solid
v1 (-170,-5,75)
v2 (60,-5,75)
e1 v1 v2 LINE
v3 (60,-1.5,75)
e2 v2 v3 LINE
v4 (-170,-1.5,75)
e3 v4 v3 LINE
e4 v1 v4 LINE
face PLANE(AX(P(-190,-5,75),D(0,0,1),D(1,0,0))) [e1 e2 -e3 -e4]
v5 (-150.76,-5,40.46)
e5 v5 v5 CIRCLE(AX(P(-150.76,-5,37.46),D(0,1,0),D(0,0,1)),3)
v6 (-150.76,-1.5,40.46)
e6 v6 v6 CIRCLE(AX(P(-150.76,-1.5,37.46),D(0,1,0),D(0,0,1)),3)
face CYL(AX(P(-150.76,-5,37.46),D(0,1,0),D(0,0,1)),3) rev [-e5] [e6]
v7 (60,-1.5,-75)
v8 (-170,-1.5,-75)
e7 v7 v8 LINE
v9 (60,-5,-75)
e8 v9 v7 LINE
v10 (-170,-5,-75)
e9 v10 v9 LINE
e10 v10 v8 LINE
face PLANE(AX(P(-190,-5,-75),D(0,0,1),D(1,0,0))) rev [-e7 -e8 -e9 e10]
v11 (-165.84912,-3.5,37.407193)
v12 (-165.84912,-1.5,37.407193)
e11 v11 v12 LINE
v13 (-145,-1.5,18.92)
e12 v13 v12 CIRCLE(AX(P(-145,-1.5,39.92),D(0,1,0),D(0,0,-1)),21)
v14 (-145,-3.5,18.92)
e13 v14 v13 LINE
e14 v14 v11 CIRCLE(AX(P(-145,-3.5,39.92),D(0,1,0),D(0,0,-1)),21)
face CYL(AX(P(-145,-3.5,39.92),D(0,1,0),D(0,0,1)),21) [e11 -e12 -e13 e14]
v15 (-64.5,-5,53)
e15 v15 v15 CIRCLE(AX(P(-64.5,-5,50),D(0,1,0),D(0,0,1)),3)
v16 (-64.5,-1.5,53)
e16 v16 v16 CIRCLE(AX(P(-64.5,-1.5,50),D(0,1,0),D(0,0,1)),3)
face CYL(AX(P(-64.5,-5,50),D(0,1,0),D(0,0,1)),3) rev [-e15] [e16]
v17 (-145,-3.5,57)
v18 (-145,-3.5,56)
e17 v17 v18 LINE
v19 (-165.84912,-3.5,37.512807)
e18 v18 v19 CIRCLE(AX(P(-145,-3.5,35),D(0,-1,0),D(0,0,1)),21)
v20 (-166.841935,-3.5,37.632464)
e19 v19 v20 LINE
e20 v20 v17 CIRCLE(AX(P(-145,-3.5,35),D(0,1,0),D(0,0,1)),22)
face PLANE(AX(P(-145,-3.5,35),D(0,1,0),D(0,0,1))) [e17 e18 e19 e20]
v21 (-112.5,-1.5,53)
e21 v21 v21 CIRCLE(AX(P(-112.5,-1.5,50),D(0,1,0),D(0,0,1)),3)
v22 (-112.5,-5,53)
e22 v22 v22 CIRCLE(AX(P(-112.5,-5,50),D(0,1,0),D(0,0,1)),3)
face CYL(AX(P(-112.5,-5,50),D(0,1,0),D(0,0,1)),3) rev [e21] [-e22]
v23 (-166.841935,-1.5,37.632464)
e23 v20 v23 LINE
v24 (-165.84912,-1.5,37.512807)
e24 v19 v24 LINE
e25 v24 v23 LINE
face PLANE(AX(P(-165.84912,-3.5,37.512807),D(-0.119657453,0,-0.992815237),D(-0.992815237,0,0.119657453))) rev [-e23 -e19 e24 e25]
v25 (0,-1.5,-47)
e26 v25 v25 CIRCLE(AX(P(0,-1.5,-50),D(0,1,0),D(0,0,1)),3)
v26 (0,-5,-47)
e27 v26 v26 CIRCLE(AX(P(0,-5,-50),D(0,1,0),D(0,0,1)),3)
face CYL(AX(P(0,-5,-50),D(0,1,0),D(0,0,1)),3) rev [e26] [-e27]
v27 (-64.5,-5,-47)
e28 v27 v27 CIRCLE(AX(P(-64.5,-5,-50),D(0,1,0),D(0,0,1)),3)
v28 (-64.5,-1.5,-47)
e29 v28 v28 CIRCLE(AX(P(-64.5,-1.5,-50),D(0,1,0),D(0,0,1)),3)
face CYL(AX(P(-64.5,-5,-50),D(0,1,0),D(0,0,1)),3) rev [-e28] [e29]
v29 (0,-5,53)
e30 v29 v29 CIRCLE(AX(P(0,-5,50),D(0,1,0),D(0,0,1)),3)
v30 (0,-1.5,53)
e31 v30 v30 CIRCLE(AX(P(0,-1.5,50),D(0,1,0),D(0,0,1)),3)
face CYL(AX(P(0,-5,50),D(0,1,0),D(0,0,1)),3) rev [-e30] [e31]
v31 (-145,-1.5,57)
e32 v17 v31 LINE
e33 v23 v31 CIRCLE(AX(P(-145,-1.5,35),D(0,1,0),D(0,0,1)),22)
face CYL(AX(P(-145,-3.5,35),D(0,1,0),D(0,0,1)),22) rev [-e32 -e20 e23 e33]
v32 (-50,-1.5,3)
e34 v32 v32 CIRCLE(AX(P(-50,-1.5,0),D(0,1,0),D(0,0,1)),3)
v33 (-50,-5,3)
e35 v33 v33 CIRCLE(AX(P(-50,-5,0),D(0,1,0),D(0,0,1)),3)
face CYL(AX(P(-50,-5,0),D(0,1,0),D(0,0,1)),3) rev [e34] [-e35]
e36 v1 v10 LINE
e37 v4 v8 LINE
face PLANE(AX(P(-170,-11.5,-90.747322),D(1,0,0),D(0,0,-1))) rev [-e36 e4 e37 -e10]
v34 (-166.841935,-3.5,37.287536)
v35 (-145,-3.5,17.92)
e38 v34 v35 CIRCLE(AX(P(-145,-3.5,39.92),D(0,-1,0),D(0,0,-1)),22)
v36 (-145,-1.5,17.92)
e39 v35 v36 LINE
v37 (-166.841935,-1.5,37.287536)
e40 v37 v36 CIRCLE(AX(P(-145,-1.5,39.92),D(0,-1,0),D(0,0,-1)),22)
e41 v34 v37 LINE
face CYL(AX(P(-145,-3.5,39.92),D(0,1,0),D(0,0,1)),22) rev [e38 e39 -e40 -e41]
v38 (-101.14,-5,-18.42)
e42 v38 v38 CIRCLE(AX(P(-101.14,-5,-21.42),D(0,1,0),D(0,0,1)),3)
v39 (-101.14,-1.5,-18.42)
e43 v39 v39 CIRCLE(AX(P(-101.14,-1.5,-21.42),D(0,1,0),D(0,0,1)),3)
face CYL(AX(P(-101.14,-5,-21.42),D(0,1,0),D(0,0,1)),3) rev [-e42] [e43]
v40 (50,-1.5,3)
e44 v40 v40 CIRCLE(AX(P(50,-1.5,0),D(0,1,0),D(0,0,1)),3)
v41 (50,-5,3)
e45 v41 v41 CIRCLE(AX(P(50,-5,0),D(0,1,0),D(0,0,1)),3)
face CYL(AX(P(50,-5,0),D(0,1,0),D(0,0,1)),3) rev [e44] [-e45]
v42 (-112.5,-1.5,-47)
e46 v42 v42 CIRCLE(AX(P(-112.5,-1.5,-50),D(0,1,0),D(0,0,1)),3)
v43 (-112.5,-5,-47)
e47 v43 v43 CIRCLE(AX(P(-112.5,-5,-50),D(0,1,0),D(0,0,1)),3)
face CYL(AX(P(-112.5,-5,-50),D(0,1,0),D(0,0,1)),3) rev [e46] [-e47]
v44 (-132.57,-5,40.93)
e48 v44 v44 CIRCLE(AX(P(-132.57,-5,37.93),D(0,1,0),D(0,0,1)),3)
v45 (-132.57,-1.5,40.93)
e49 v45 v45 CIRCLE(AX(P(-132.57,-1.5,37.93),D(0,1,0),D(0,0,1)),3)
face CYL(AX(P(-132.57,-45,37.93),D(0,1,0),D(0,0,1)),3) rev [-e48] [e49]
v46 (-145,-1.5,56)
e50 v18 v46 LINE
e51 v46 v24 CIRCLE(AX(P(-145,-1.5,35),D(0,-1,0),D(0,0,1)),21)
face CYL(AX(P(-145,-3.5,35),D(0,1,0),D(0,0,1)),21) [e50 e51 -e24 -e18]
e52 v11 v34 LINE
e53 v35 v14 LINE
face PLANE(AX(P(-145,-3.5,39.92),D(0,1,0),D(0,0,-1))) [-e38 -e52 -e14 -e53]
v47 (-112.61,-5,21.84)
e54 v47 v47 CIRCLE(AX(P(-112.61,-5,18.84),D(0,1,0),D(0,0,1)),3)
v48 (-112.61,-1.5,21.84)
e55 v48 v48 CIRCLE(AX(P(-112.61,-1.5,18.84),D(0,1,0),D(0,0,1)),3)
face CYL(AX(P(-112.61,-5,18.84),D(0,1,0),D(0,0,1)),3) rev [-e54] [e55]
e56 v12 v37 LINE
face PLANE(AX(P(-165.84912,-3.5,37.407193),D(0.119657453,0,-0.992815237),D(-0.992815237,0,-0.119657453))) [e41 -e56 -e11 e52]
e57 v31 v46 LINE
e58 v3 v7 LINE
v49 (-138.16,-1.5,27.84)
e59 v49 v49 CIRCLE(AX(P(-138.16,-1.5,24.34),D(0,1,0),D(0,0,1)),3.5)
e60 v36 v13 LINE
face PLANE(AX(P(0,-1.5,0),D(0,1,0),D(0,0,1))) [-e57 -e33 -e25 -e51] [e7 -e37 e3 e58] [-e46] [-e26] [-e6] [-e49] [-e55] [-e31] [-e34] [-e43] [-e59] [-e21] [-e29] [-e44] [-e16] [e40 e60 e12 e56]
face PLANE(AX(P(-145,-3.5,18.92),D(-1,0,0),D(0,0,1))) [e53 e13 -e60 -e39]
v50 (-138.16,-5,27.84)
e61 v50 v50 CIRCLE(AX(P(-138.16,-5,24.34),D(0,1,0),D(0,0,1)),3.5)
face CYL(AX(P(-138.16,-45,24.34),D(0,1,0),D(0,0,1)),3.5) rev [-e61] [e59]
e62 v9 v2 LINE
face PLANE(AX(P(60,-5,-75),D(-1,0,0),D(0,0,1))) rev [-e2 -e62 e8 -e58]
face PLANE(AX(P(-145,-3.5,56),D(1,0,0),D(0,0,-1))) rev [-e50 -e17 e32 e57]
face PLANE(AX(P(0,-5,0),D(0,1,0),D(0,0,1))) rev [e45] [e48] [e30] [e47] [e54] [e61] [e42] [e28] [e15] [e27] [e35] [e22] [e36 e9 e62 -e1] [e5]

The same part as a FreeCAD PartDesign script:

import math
import FreeCAD as App
import Part
import Sketcher
from FreeCAD import Vector
Q = App.Units.Quantity

doc = App.newDocument("Part")
body = doc.addObject("PartDesign::Body", "Body")

# Sketch on XZ plane
sketch1 = body.newObject("Sketcher::SketchObject", "Sketch")
sketch1.AttachmentSupport = (doc.getObject("XZ_Plane"), [""])
sketch1.MapMode = "FlatFace"
sketch1.addGeometry([
    Part.LineSegment(Vector(-190, -75, 0), Vector(-190, 75, 0)),
    Part.LineSegment(Vector(-190, 75, 0), Vector(60, 75, 0)),
    Part.LineSegment(Vector(60, 75, 0), Vector(60, -75, 0)),
    Part.LineSegment(Vector(60, -75, 0), Vector(-190, -75, 0)),
], False)
sketch1.addConstraint([
    Sketcher.Constraint("Coincident", 0, 2, 1, 1),
    Sketcher.Constraint("Coincident", 1, 2, 2, 1),
    Sketcher.Constraint("Coincident", 2, 2, 3, 1),
    Sketcher.Constraint("Coincident", 3, 2, 0, 1),
    Sketcher.Constraint("Vertical", 0),
    Sketcher.Constraint("Horizontal", 1),
    Sketcher.Constraint("Vertical", 2),
    Sketcher.Constraint("Horizontal", 3),
    Sketcher.Constraint("DistanceX", 1, 1, 1, 2, Q("250 mm")),
    Sketcher.Constraint("DistanceY", 0, 1, 0, 2, Q("150 mm")),
    Sketcher.Constraint("DistanceX", 0, 2, -1, 1, Q("190 mm")),
    Sketcher.Constraint("DistanceY", -1, 1, 0, 2, Q("75 mm")),
])
pad1 = body.newObject("PartDesign::Pad", "Pad")
pad1.Profile = sketch1
pad1.Length = 5

# Sketch on XZ plane
sketch2 = body.newObject("Sketcher::SketchObject", "Sketch001")
sketch2.AttachmentSupport = (doc.getObject("XZ_Plane"), [""])
sketch2.MapMode = "FlatFace"
sketch2.addGeometry(Part.Circle(Vector(0, -50, 0), Vector(0, 0, 1), 3), False)
sketch2.addConstraint([
    Sketcher.Constraint("PointOnObject", 0, 3, -2),
    Sketcher.Constraint("Diameter", 0, Q("6 mm")),
    Sketcher.Constraint("DistanceY", 0, 3, -1, 1, Q("50 mm")),
])
pocket1 = body.newObject("PartDesign::Pocket", "Pocket")
pocket1.Profile = sketch2
pocket1.Length = 5
pocket1.Reversed = True

# Sketch on XZ plane
sketch3 = body.newObject("Sketcher::SketchObject", "Sketch002")
sketch3.AttachmentSupport = (doc.getObject("XZ_Plane"), [""])
sketch3.MapMode = "FlatFace"
sketch3.addGeometry(Part.Circle(Vector(-50, 0, 0), Vector(0, 0, 1), 3), False)
sketch3.addConstraint([
    Sketcher.Constraint("PointOnObject", 0, 3, -1),
    Sketcher.Constraint("Diameter", 0, Q("6 mm")),
    Sketcher.Constraint("DistanceX", 0, 3, -1, 1, Q("50 mm")),
])
pocket2 = body.newObject("PartDesign::Pocket", "Pocket001")
pocket2.Profile = sketch3
pocket2.Length = 5
pocket2.Reversed = True

# Sketch on XZ plane
sketch4 = body.newObject("Sketcher::SketchObject", "Sketch003")
sketch4.AttachmentSupport = (doc.getObject("XZ_Plane"), [""])
sketch4.MapMode = "FlatFace"
sketch4.addGeometry(Part.Circle(Vector(0, 50, 0), Vector(0, 0, 1), 3), False)
sketch4.addConstraint([
    Sketcher.Constraint("PointOnObject", 0, 3, -2),
    Sketcher.Constraint("Diameter", 0, Q("6 mm")),
    Sketcher.Constraint("DistanceY", -1, 1, 0, 3, Q("50 mm")),
])
pocket3 = body.newObject("PartDesign::Pocket", "Pocket002")
pocket3.Profile = sketch4
pocket3.Length = 5
pocket3.Reversed = True

# Sketch on XZ plane
sketch5 = body.newObject("Sketcher::SketchObject", "Sketch004")
sketch5.AttachmentSupport = (doc.getObject("XZ_Plane"), [""])
sketch5.MapMode = "FlatFace"
sketch5.addGeometry(Part.Circle(Vector(50, 0, 0), Vector(0, 0, 1), 3), False)
sketch5.addConstraint([
    Sketcher.Constraint("PointOnObject", 0, 3, -1),
    Sketcher.Constraint("Diameter", 0, Q("6 mm")),
    Sketcher.Constraint("DistanceX", -1, 1, 0, 3, Q("50 mm")),
])
pocket4 = body.newObject("PartDesign::Pocket", "Pocket003")
pocket4.Profile = sketch5
pocket4.Length = 5
pocket4.Reversed = True

# Sketch on XZ plane
sketch6 = body.newObject("Sketcher::SketchObject", "Sketch005")
sketch6.AttachmentSupport = (doc.getObject("XZ_Plane"), [""])
sketch6.MapMode = "FlatFace"
sketch6.addGeometry(Part.Circle(Vector(-150.8, 37.5, 0), Vector(0, 0, 1), 3), False)
sketch6.addConstraint([
    Sketcher.Constraint("Diameter", 0, Q("6 mm")),
    Sketcher.Constraint("DistanceX", 0, 3, -1, 1, Q("150.76 mm")),
    Sketcher.Constraint("DistanceY", -1, 1, 0, 3, Q("37.46 mm")),
])
pocket5 = body.newObject("PartDesign::Pocket", "Pocket004")
pocket5.Profile = sketch6
pocket5.Length = 5
pocket5.Reversed = True

# Sketch on XZ plane
sketch7 = body.newObject("Sketcher::SketchObject", "Sketch006")
sketch7.AttachmentSupport = (doc.getObject("XZ_Plane"), [""])
sketch7.MapMode = "FlatFace"
sketch7.addGeometry(Part.Circle(Vector(-132.6, 37.9, 0), Vector(0, 0, 1), 3), False)
sketch7.addConstraint([
    Sketcher.Constraint("Diameter", 0, Q("6 mm")),
    Sketcher.Constraint("DistanceX", 0, 3, -1, 1, Q("132.57 mm")),
    Sketcher.Constraint("DistanceY", -1, 1, 0, 3, Q("37.93 mm")),
])
pocket6 = body.newObject("PartDesign::Pocket", "Pocket005")
pocket6.Profile = sketch7
pocket6.Length = 45
pocket6.Reversed = True

# Sketch on XZ plane
sketch8 = body.newObject("Sketcher::SketchObject", "Sketch007")
sketch8.AttachmentSupport = (doc.getObject("XZ_Plane"), [""])
sketch8.MapMode = "FlatFace"
sketch8.addGeometry(Part.Circle(Vector(-138.2, 24.3, 0), Vector(0, 0, 1), 3.5), False)
sketch8.addConstraint([
    Sketcher.Constraint("Diameter", 0, Q("7 mm")),
    Sketcher.Constraint("DistanceX", 0, 3, -1, 1, Q("138.16 mm")),
    Sketcher.Constraint("DistanceY", -1, 1, 0, 3, Q("24.34 mm")),
])
pocket7 = body.newObject("PartDesign::Pocket", "Pocket006")
pocket7.Profile = sketch8
pocket7.Length = 45
pocket7.Reversed = True

# Sketch on XZ plane
sketch9 = body.newObject("Sketcher::SketchObject", "Sketch008")
sketch9.AttachmentSupport = (doc.getObject("XZ_Plane"), [""])
sketch9.MapMode = "FlatFace"
sketch9.addGeometry(Part.Circle(Vector(-112.5, 50, 0), Vector(0, 0, 1), 3), False)
sketch9.addConstraint([
    Sketcher.Constraint("Diameter", 0, Q("6 mm")),
    Sketcher.Constraint("DistanceY", -1, 1, 0, 3, Q("50 mm")),
    Sketcher.Constraint("DistanceX", 0, 3, -1, 1, Q("112.5 mm")),
])
pocket8 = body.newObject("PartDesign::Pocket", "Pocket007")
pocket8.Profile = sketch9
pocket8.Length = 5
pocket8.Reversed = True

# Sketch on XZ plane
sketch10 = body.newObject("Sketcher::SketchObject", "Sketch009")
sketch10.AttachmentSupport = (doc.getObject("XZ_Plane"), [""])
sketch10.MapMode = "FlatFace"
sketch10.addGeometry(Part.Circle(Vector(-64.5, 50, 0), Vector(0, 0, 1), 3), False)
sketch10.addConstraint([
    Sketcher.Constraint("Diameter", 0, Q("6 mm")),
    Sketcher.Constraint("DistanceY", -1, 1, 0, 3, Q("50 mm")),
    Sketcher.Constraint("DistanceX", 0, 3, -1, 1, Q("64.5 mm")),
])
pocket9 = body.newObject("PartDesign::Pocket", "Pocket008")
pocket9.Profile = sketch10
pocket9.Length = 5
pocket9.Reversed = True

# Sketch on XZ plane
sketch11 = body.newObject("Sketcher::SketchObject", "Sketch010")
sketch11.AttachmentSupport = (doc.getObject("XZ_Plane"), [""])
sketch11.MapMode = "FlatFace"
sketch11.addGeometry([
    Part.Circle(Vector(-112.6, 18.8, 0), Vector(0, 0, 1), 3),
    Part.Circle(Vector(-101.1, -21.4, 0), Vector(0, 0, 1), 3),
], False)
sketch11.addConstraint([
    Sketcher.Constraint("Equal", 0, 1),
    Sketcher.Constraint("Diameter", 0, Q("6 mm")),
    Sketcher.Constraint("DistanceX", 0, 3, -1, 1, Q("112.61 mm")),
    Sketcher.Constraint("DistanceY", -1, 1, 0, 3, Q("18.84 mm")),
    Sketcher.Constraint("DistanceX", 1, 3, -1, 1, Q("101.14 mm")),
    Sketcher.Constraint("DistanceY", 1, 3, -1, 1, Q("21.42 mm")),
])
pocket10 = body.newObject("PartDesign::Pocket", "Pocket009")
pocket10.Profile = sketch11
pocket10.Length = 5
pocket10.Reversed = True

# Sketch on XZ plane
sketch12 = body.newObject("Sketcher::SketchObject", "Sketch011")
sketch12.AttachmentSupport = (doc.getObject("XZ_Plane"), [""])
sketch12.MapMode = "FlatFace"
sketch12.addGeometry([
    Part.LineSegment(Vector(-190, -75, 0), Vector(-190, 75, 0)),  # 0
    Part.LineSegment(Vector(-190, 75, 0), Vector(60, 75, 0)),  # 1
    Part.LineSegment(Vector(60, 75, 0), Vector(60, -75, 0)),  # 2
    Part.LineSegment(Vector(60, -75, 0), Vector(-190, -75, 0)),  # 3
    Part.Circle(Vector(-112.5, 50, 0), Vector(0, 0, 1), 3),  # 4
    Part.Circle(Vector(-150.8, 37.5, 0), Vector(0, 0, 1), 3),  # 5
    Part.Circle(Vector(-132.6, 37.9, 0), Vector(0, 0, 1), 3),  # 6
    Part.Circle(Vector(-64.5, 50, 0), Vector(0, 0, 1), 3),  # 7
    Part.Circle(Vector(-138.2, 24.3, 0), Vector(0, 0, 1), 3.5),  # 8
    Part.Circle(Vector(-112.6, 18.8, 0), Vector(0, 0, 1), 3),  # 9
    Part.Circle(Vector(0, 50, 0), Vector(0, 0, 1), 3),  # 10
    Part.Circle(Vector(-101.1, -21.4, 0), Vector(0, 0, 1), 3),  # 11
    Part.Circle(Vector(-50, 0, 0), Vector(0, 0, 1), 3),  # 12
    Part.Circle(Vector(50, 0, 0), Vector(0, 0, 1), 3),  # 13
    Part.Circle(Vector(0, -50, 0), Vector(0, 0, 1), 3),  # 14
], False)
sketch12.addConstraint([
    Sketcher.Constraint("Coincident", 0, 2, 1, 1),
    Sketcher.Constraint("Coincident", 1, 2, 2, 1),
    Sketcher.Constraint("Coincident", 2, 2, 3, 1),
    Sketcher.Constraint("Coincident", 3, 2, 0, 1),
    Sketcher.Constraint("Vertical", 0),
    Sketcher.Constraint("Horizontal", 1),
    Sketcher.Constraint("Vertical", 2),
    Sketcher.Constraint("Horizontal", 3),
    Sketcher.Constraint("Equal", 4, 5),
    Sketcher.Constraint("Equal", 5, 6),
    Sketcher.Constraint("Equal", 6, 7),
    Sketcher.Constraint("Equal", 7, 9),
    Sketcher.Constraint("Equal", 9, 10),
    Sketcher.Constraint("Equal", 10, 11),
    Sketcher.Constraint("Equal", 11, 12),
    Sketcher.Constraint("Equal", 12, 13),
    Sketcher.Constraint("Equal", 13, 14),
    Sketcher.Constraint("Symmetric", 12, 3, 13, 3, -1, 1),
    Sketcher.Constraint("Symmetric", 10, 3, 14, 3, -1, 1),
    Sketcher.Constraint("PointOnObject", 10, 3, -2),
    Sketcher.Constraint("PointOnObject", 12, 3, -1),
    Sketcher.Constraint("Horizontal", 4, 3, 7, 3),
    Sketcher.Constraint("Horizontal", 7, 3, 10, 3),
    Sketcher.Constraint("Diameter", 4, Q("6 mm")),
    Sketcher.Constraint("Diameter", 8, Q("7 mm")),
    Sketcher.Constraint("DistanceX", 1, 1, 1, 2, Q("250 mm")),
    Sketcher.Constraint("DistanceY", 0, 1, 0, 2, Q("150 mm")),
    Sketcher.Constraint("DistanceY", -1, 1, 4, 3, Q("50 mm")),
    Sketcher.Constraint("DistanceX", 12, 3, -1, 1, Q("50 mm")),
    Sketcher.Constraint("DistanceX", 0, 2, -1, 1, Q("190 mm")),
    Sketcher.Constraint("DistanceY", -1, 1, 0, 2, Q("75 mm")),
    Sketcher.Constraint("DistanceX", 4, 3, 7, 3, Q("48 mm")),
    Sketcher.Constraint("DistanceX", 4, 3, -1, 1, Q("112.5 mm")),
    Sketcher.Constraint("DistanceX", 5, 3, 8, 3, Q("12.6 mm")),
    Sketcher.Constraint("DistanceY", 9, 3, 8, 3, Q("5.5 mm")),
    Sketcher.Constraint("DistanceX", 5, 3, -1, 1, Q("150.76 mm")),
    Sketcher.Constraint("DistanceY", -1, 1, 5, 3, Q("37.46 mm")),
    Sketcher.Constraint("DistanceX", 6, 3, -1, 1, Q("132.57 mm")),
    Sketcher.Constraint("DistanceY", -1, 1, 6, 3, Q("37.93 mm")),
    Sketcher.Constraint("DistanceY", -1, 1, 8, 3, Q("24.34 mm")),
    Sketcher.Constraint("DistanceX", 9, 3, -1, 1, Q("112.61 mm")),
    Sketcher.Constraint("DistanceX", 11, 3, -1, 1, Q("101.14 mm")),
    Sketcher.Constraint("DistanceY", 11, 3, -1, 1, Q("21.42 mm")),
])
pocket11 = body.newObject("PartDesign::Pocket", "Pocket010")
pocket11.Profile = sketch12
pocket11.Length = 1.5
pocket11.Reversed = True

# Sketch on XZ plane
sketch13 = body.newObject("Sketcher::SketchObject", "Sketch012")
sketch13.AttachmentSupport = (doc.getObject("XZ_Plane"), [""])
sketch13.MapMode = "FlatFace"
sketch13.AttachmentOffset = App.Placement(Vector(0, 0, 1.5), App.Rotation())
sketch13.addGeometry([
    Part.Circle(Vector(-64.5, -50, 0), Vector(0, 0, 1), 3),
    Part.Circle(Vector(-112.5, -50, 0), Vector(0, 0, 1), 3),
    Part.Circle(Vector(-64.5, 50, 0), Vector(0, 0, 1), 3),
    Part.Circle(Vector(-112.5, 50, 0), Vector(0, 0, 1), 3),
], False)
sketch13.addConstraint([
    Sketcher.Constraint("Equal", 0, 1),
    Sketcher.Constraint("Equal", 1, 2),
    Sketcher.Constraint("Equal", 2, 3),
    Sketcher.Constraint("Symmetric", 0, 3, 2, 3, -1),
    Sketcher.Constraint("Symmetric", 1, 3, 3, 3, -1),
    Sketcher.Constraint("Horizontal", 0, 3, 1, 3),
    Sketcher.Constraint("Diameter", 0, Q("6 mm")),
    Sketcher.Constraint("DistanceY", 0, 3, -1, 1, Q("50 mm")),
    Sketcher.Constraint("DistanceX", 1, 3, 0, 3, Q("48 mm")),
    Sketcher.Constraint("DistanceX", 0, 3, -1, 1, Q("64.5 mm")),
])
pocket12 = body.newObject("PartDesign::Pocket", "Pocket011")
pocket12.Profile = sketch13
pocket12.Type = "ThroughAll"
pocket12.Reversed = True

# Sketch on XZ plane
sketch14 = body.newObject("Sketcher::SketchObject", "Sketch013")
sketch14.AttachmentSupport = (doc.getObject("XZ_Plane"), [""])
sketch14.MapMode = "FlatFace"
sketch14.AttachmentOffset = App.Placement(Vector(0, 0, 1.5), App.Rotation())
sketch14.addGeometry([
    Part.LineSegment(Vector(-253, -91, 0), Vector(-253, 91, 0)),
    Part.LineSegment(Vector(-253, 91, 0), Vector(-170, 91, 0)),
    Part.LineSegment(Vector(-170, 91, 0), Vector(-170, -91, 0)),
    Part.LineSegment(Vector(-170, -91, 0), Vector(-253, -91, 0)),
], False)
sketch14.addConstraint([
    Sketcher.Constraint("Coincident", 0, 2, 1, 1),
    Sketcher.Constraint("Coincident", 1, 2, 2, 1),
    Sketcher.Constraint("Coincident", 2, 2, 3, 1),
    Sketcher.Constraint("Coincident", 3, 2, 0, 1),
    Sketcher.Constraint("Vertical", 0),
    Sketcher.Constraint("Horizontal", 1),
    Sketcher.Constraint("Vertical", 2),
    Sketcher.Constraint("Horizontal", 3),
    Sketcher.Constraint("DistanceX", 1, 2, -1, 1, Q("170 mm")),
    Sketcher.Constraint("DistanceX", 1, 1, 1, 2, Q("82.62185 mm")),
    Sketcher.Constraint("DistanceY", 0, 1, 0, 2, Q("181.309059 mm")),
    Sketcher.Constraint("DistanceY", -1, 1, 0, 2, Q("90.561737 mm")),
])
pocket13 = body.newObject("PartDesign::Pocket", "Pocket012")
pocket13.Profile = sketch14
pocket13.Length = 10
pocket13.Reversed = True

# Sketch on XZ plane
sketch15 = body.newObject("Sketcher::SketchObject", "Sketch014")
sketch15.AttachmentSupport = (doc.getObject("XZ_Plane"), [""])
sketch15.MapMode = "FlatFace"
sketch15.AttachmentOffset = App.Placement(Vector(0, 0, 1.5), App.Rotation())
sketch15.addGeometry([
    Part.LineSegment(Vector(-165.8, 37.5, 0), Vector(-166.8, 37.6, 0)),
    Part.ArcOfCircle(Part.Circle(Vector(-145, 35, 0), Vector(0, 0, 1), 22), math.radians(90), math.radians(173)),
    Part.LineSegment(Vector(-145, 57, 0), Vector(-145, 56, 0)),
    Part.ArcOfCircle(Part.Circle(Vector(-145, 35, 0), Vector(0, 0, 1), 21), math.radians(90), math.radians(173)),
], False)
sketch15.addConstraint([
    Sketcher.Constraint("Coincident", 0, 2, 1, 2),
    Sketcher.Constraint("Coincident", 1, 1, 2, 1),
    Sketcher.Constraint("Coincident", 2, 2, 3, 1),
    Sketcher.Constraint("Coincident", 3, 2, 0, 1),
    Sketcher.Constraint("Vertical", 2),
    Sketcher.Constraint("Coincident", 3, 3, 1, 3),
    Sketcher.Constraint("Vertical", 3, 3, 1, 1),
    Sketcher.Constraint("Radius", 1, Q("22 mm")),
    Sketcher.Constraint("Radius", 3, Q("21 mm")),
    Sketcher.Constraint("DistanceX", 1, 3, -1, 1, Q("145 mm")),
    Sketcher.Constraint("DistanceY", -1, 1, 1, 3, Q("35 mm")),
    Sketcher.Constraint("DistanceX", 3, 2, -1, 1, Q("165.84912 mm")),
    Sketcher.Constraint("DistanceX", 0, 2, -1, 1, Q("166.841935 mm")),
])
pocket14 = body.newObject("PartDesign::Pocket", "Pocket013")
pocket14.Profile = sketch15
pocket14.Length = 2
pocket14.Reversed = True
doc.recompute()

datumplane = body.newObject("PartDesign::Plane", "DatumPlane")
datumplane.AttachmentSupport = (doc.getObject("XY_Plane"), [""])
datumplane.MapMode = "FlatFace"
datumplane.AttachmentOffset = App.Placement(Vector(0, 0, 37.46), App.Rotation())
mirrored = body.newObject("PartDesign::Mirrored", "Mirrored")
mirrored.Originals = [pocket14]
mirrored.MirrorPlane = (datumplane, [""])
body.Tip = mirrored

doc.recompute()
